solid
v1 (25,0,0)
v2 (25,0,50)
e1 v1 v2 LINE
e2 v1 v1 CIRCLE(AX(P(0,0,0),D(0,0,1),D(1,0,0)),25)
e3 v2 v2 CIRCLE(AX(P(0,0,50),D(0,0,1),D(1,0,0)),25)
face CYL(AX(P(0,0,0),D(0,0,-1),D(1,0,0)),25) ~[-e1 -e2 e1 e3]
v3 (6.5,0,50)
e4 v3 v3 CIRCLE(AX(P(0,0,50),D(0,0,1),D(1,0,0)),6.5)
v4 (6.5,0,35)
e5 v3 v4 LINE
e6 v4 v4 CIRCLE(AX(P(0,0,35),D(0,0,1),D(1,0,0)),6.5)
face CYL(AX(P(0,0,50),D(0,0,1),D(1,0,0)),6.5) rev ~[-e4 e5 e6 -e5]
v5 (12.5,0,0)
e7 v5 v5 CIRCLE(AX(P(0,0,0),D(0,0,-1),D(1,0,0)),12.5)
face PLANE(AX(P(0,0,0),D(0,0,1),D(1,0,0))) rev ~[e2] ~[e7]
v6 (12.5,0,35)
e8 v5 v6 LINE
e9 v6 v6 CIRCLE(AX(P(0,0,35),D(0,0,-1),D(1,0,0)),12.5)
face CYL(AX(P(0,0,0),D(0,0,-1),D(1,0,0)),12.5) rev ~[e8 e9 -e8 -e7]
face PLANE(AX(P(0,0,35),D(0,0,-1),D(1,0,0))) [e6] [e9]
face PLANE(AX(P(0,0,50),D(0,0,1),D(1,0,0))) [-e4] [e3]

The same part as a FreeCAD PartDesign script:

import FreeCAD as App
import Part
import Sketcher
from FreeCAD import Vector
Q = App.Units.Quantity

doc = App.newDocument("Part")
body = doc.addObject("PartDesign::Body", "Body")

# Sketch on XY plane
sketch1 = body.newObject("Sketcher::SketchObject", "Sketch")
sketch1.AttachmentSupport = (doc.getObject("XY_Plane"), [""])
sketch1.MapMode = "FlatFace"
sketch1.addGeometry(Part.Circle(Vector(0, 0, 0), Vector(0, 0, 1), 25), False)
sketch1.addConstraint([
    Sketcher.Constraint("Coincident", 0, 3, -1, 1),
    Sketcher.Constraint("Diameter", 0, Q("50 mm")),
])
pad1 = body.newObject("PartDesign::Pad", "Pad")
pad1.Profile = sketch1
pad1.Length = 50

# Sketch on XY plane
sketch2 = body.newObject("Sketcher::SketchObject", "Sketch001")
sketch2.AttachmentSupport = (doc.getObject("XY_Plane"), [""])
sketch2.MapMode = "FlatFace"
sketch2.AttachmentOffset = App.Placement(Vector(0, 0, 50), App.Rotation())
sketch2.addGeometry(Part.Circle(Vector(0, 0, 0), Vector(0, 0, 1), 6.5), False)
sketch2.addConstraint([
    Sketcher.Constraint("Coincident", 0, 3, -1, 1),
    Sketcher.Constraint("Diameter", 0, Q("13 mm")),
])
pocket1 = body.newObject("PartDesign::Pocket", "Pocket")
pocket1.Profile = sketch2
pocket1.Length = 50

# Sketch on XY plane
sketch3 = body.newObject("Sketcher::SketchObject", "Sketch002")
sketch3.AttachmentSupport = (doc.getObject("XY_Plane"), [""])
sketch3.MapMode = "FlatFace"
sketch3.addGeometry(Part.Circle(Vector(0, 0, 0), Vector(0, 0, 1), 12.5), False)
sketch3.addConstraint([
    Sketcher.Constraint("Coincident", 0, 3, -1, 1),
    Sketcher.Constraint("Diameter", 0, Q("25 mm")),
])
pocket2 = body.newObject("PartDesign::Pocket", "Pocket001")
pocket2.Profile = sketch3
pocket2.Length = 35
pocket2.Reversed = True

doc.recompute()
